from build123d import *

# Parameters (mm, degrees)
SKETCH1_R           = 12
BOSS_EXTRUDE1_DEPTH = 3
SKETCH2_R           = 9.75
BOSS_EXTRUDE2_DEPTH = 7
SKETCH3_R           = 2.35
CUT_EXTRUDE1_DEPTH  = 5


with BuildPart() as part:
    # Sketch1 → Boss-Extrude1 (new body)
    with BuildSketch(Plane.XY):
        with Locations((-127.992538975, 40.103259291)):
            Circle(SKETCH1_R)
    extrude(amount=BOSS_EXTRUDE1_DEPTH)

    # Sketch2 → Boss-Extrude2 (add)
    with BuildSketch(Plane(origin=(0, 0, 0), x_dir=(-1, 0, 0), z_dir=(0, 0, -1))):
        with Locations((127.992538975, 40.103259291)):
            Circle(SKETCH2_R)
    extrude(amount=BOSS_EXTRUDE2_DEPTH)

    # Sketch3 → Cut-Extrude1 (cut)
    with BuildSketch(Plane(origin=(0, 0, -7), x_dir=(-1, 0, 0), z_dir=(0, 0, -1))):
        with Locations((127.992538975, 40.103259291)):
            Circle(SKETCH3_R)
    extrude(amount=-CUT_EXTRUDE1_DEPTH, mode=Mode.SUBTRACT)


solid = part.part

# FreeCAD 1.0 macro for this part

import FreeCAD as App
import Part
import Sketcher

V = App.Vector
Q = App.Units.Quantity

doc = App.newDocument("Part")
body = doc.addObject("PartDesign::Body", "Body")

# Sketch on XY plane
sketch1 = body.newObject("Sketcher::SketchObject", "Sketch")
sketch1.AttachmentSupport = (doc.getObject("XY_Plane"), [""])
sketch1.MapMode = "FlatFace"
sketch1.addGeometry(Part.Circle(V(-128, 40, 0), V(0, 0, 1), 12), False)
sketch1.addConstraint(Sketcher.Constraint("Diameter", 0, Q("24 mm")))
sketch1.addConstraint(Sketcher.Constraint("DistanceX", 0, 3, -1, 1, Q("127.992539 mm")))
sketch1.addConstraint(Sketcher.Constraint("DistanceY", -1, 1, 0, 3, Q("40.103259 mm")))
pad1 = body.newObject("PartDesign::Pad", "Pad")
pad1.Profile = sketch1
pad1.Length = 3

# Sketch on XY plane
sketch2 = body.newObject("Sketcher::SketchObject", "Sketch001")
sketch2.AttachmentSupport = (doc.getObject("XY_Plane"), [""])
sketch2.MapMode = "FlatFace"
sketch2.addGeometry(Part.Circle(V(-128, 40, 0), V(0, 0, 1), 10), False)
sketch2.addConstraint(Sketcher.Constraint("Diameter", 0, Q("19.5 mm")))
sketch2.addConstraint(Sketcher.Constraint("DistanceX", 0, 3, -1, 1, Q("127.992539 mm")))
sketch2.addConstraint(Sketcher.Constraint("DistanceY", -1, 1, 0, 3, Q("40.103259 mm")))
pad2 = body.newObject("PartDesign::Pad", "Pad001")
pad2.Profile = sketch2
pad2.Length = 7
pad2.Reversed = True

# Sketch on XY plane
sketch3 = body.newObject("Sketcher::SketchObject", "Sketch002")
sketch3.AttachmentSupport = (doc.getObject("XY_Plane"), [""])
sketch3.MapMode = "FlatFace"
sketch3.AttachmentOffset = App.Placement(V(0, 0, -7), App.Rotation())
sketch3.addGeometry(Part.Circle(V(-128, 40.1, 0), V(0, 0, 1), 2.4), False)
sketch3.addConstraint(Sketcher.Constraint("Diameter", 0, Q("4.7 mm")))
sketch3.addConstraint(Sketcher.Constraint("DistanceX", 0, 3, -1, 1, Q("127.992539 mm")))
sketch3.addConstraint(Sketcher.Constraint("DistanceY", -1, 1, 0, 3, Q("40.103259 mm")))
pocket1 = body.newObject("PartDesign::Pocket", "Pocket")
pocket1.Profile = sketch3
pocket1.Length = 5
pocket1.Reversed = True

doc.recompute()
